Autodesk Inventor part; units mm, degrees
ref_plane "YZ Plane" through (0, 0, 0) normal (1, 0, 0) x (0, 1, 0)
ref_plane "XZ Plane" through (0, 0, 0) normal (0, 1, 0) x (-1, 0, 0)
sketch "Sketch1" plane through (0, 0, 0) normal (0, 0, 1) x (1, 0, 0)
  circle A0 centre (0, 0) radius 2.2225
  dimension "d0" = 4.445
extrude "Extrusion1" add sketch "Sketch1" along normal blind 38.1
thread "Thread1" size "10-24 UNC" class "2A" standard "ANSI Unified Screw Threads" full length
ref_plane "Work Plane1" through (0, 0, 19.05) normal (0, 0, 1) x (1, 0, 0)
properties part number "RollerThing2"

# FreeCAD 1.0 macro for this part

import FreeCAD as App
import Part
import Sketcher
Q = App.Units.Quantity

doc = App.newDocument("Part")
body = doc.addObject("PartDesign::Body", "Body")

sketch1 = body.newObject("Sketcher::SketchObject", "Sketch")
sketch1.AttachmentSupport = (doc.getObject("XY_Plane"), [""])
sketch1.MapMode = "FlatFace"
sketch1.addGeometry(Part.Circle(App.Vector(0, 0, 0), App.Vector(0, 0, 1), 2.2), False)
sketch1.addConstraint(Sketcher.Constraint("Coincident", 0, 3, -1, 1))
sketch1.addConstraint(Sketcher.Constraint("Diameter", 0, Q("0.175 in")))
pad1 = body.newObject("PartDesign::Pad", "Pad")
pad1.Profile = sketch1
pad1.Length = Q("1.5 in")

doc.recompute()
